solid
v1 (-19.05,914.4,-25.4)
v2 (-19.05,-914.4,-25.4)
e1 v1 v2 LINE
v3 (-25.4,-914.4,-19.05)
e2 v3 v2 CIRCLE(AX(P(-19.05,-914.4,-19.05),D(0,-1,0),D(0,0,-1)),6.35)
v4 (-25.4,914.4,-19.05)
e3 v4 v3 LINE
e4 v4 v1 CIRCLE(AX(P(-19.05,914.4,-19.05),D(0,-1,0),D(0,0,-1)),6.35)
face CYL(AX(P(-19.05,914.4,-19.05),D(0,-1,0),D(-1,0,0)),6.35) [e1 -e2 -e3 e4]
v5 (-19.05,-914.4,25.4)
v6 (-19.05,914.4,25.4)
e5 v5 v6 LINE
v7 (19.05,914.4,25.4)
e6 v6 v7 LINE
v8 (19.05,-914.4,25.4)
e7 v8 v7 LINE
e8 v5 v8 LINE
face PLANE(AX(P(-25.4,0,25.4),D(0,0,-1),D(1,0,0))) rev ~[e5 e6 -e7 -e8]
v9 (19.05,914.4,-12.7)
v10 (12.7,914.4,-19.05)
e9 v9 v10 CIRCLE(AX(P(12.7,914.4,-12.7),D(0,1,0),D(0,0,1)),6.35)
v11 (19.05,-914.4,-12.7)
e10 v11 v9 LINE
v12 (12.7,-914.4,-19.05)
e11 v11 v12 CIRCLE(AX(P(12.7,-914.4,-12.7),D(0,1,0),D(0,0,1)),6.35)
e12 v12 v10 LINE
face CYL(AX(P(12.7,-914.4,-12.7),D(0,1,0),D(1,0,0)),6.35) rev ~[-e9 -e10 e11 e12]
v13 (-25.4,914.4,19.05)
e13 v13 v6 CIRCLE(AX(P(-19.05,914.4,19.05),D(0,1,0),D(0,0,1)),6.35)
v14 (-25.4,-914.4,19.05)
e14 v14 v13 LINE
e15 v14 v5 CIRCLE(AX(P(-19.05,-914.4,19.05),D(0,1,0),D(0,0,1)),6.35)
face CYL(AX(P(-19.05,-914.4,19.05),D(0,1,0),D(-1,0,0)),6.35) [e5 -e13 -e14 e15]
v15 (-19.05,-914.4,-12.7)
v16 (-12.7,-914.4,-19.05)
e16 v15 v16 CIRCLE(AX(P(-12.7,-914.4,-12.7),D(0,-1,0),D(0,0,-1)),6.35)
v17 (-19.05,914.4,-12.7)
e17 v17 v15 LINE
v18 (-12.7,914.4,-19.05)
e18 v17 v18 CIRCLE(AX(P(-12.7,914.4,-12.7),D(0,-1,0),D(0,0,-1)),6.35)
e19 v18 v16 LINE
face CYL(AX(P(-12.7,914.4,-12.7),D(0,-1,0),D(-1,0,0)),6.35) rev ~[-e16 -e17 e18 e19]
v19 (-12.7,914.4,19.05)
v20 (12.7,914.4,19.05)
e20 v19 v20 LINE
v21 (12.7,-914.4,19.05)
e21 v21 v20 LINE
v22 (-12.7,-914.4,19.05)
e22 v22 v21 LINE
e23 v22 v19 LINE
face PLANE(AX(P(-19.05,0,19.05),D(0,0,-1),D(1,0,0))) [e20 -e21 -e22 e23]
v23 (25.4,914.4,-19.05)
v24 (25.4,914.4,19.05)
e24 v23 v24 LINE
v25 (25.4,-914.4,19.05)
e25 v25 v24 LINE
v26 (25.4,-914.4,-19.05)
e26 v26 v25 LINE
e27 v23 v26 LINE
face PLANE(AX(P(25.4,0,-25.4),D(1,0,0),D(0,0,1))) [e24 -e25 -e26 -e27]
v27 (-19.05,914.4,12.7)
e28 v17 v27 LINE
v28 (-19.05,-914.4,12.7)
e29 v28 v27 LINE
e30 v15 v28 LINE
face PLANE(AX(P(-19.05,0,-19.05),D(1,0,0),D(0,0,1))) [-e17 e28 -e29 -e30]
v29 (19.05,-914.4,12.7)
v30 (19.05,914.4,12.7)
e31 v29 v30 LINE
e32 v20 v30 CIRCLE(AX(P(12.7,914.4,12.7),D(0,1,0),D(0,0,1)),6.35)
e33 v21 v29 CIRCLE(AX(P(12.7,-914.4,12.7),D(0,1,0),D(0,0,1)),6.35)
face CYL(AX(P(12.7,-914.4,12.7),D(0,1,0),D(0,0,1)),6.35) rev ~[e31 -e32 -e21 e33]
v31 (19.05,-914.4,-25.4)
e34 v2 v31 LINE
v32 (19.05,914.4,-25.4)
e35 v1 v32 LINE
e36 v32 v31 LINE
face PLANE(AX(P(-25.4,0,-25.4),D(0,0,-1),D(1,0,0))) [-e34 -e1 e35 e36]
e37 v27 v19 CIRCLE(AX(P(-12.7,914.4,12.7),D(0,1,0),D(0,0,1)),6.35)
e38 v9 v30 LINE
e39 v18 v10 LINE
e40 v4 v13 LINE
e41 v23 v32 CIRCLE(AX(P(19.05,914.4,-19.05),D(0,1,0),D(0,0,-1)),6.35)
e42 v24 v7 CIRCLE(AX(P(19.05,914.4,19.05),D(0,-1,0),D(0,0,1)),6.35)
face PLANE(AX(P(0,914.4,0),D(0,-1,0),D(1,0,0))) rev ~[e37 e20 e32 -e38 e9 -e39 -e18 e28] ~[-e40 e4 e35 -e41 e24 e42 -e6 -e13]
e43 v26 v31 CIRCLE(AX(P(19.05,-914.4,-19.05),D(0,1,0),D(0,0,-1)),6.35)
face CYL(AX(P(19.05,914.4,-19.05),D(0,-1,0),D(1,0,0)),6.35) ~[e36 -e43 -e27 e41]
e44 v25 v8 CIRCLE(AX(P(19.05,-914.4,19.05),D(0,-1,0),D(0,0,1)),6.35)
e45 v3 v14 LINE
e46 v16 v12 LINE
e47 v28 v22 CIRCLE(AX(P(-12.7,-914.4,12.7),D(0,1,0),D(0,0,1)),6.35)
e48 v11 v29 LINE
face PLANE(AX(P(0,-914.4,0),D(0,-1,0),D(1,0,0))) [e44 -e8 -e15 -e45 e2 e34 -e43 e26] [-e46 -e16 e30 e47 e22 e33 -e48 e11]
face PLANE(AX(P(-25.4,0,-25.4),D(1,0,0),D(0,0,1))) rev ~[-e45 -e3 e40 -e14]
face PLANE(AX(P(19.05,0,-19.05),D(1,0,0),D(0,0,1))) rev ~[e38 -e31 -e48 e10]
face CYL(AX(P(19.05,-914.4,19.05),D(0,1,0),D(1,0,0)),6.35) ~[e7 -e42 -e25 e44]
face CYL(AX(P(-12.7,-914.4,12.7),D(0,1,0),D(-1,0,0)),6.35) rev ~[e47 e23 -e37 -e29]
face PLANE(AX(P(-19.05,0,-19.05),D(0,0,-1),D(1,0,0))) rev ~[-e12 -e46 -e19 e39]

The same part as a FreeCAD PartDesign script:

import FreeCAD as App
import Part
import Sketcher

V = App.Vector
Q = App.Units.Quantity


def edges_at(feature, points):
    """Names of the edges that pass closest to the given points."""
    edges = feature.Shape.Edges
    near = lambda p: min(range(len(edges)), key=lambda i: edges[i].distToShape(Part.Vertex(*p))[0])
    return sorted({f"Edge{near(p) + 1}" for p in points})


def add_polygon(sketch, points):
    """Adds a closed chain of lines whose ends are joined by coincident constraints."""
    first, n = sketch.GeometryCount, len(points)
    for a, b in zip(points, points[1:] + points[:1]):
        sketch.addGeometry(Part.LineSegment(App.Vector(*a, 0), App.Vector(*b, 0)), False)
    for i in range(n):
        sketch.addConstraint(Sketcher.Constraint("Coincident", first + i, 2, first + (i + 1) % n, 1))

doc = App.newDocument("Part")
body = doc.addObject("PartDesign::Body", "Body")

# Sketch on XZ plane
sketch1 = body.newObject("Sketcher::SketchObject", "Sketch")
sketch1.AttachmentSupport = (doc.getObject("XZ_Plane"), [""])
sketch1.MapMode = "FlatFace"
add_polygon(sketch1, [(-25.4, 25.4), (-25.4, -25.4), (25.4, -25.4), (25.4, 25.4)])  # lines 0-3
add_polygon(sketch1, [(19.05, -19.05), (-19.05, -19.05), (-19.05, 19.05), (19.05, 19.05)])  # lines 4-7
sketch1.addConstraint(Sketcher.Constraint("Vertical", 0))
sketch1.addConstraint(Sketcher.Constraint("Horizontal", 1))
sketch1.addConstraint(Sketcher.Constraint("Vertical", 2))
sketch1.addConstraint(Sketcher.Constraint("Horizontal", 3))
sketch1.addConstraint(Sketcher.Constraint("Horizontal", 4))
sketch1.addConstraint(Sketcher.Constraint("Vertical", 5))
sketch1.addConstraint(Sketcher.Constraint("Horizontal", 6))
sketch1.addConstraint(Sketcher.Constraint("Vertical", 7))
sketch1.addConstraint(Sketcher.Constraint("Symmetric", 0, 2, 2, 2, -1, 1))
sketch1.addConstraint(Sketcher.Constraint("Symmetric", 4, 2, 6, 2, -1, 1))
sketch1.addConstraint(Sketcher.Constraint("Equal", 3, 0))
sketch1.addConstraint(Sketcher.Constraint("Equal", 6, 5))
sketch1.addConstraint(Sketcher.Constraint("DistanceX", 1, 1, 1, 2, Q("2 in")))
sketch1.addConstraint(Sketcher.Constraint("DistanceX", 4, 2, 4, 1, Q("1.5 in")))
pad1 = body.newObject("PartDesign::Pad", "Pad")
pad1.Profile = sketch1
pad1.Length = Q("72 in")
pad1.Midplane = True
doc.recompute()

fillet = body.newObject("PartDesign::Fillet", "Fillet")
fillet.Base = (pad1, edges_at(pad1, [
    (-19.05, 0, 19.05),
    (25.4, 0, -25.4),
    (-25.4, 0, -25.4),
    (25.4, 0, 25.4),
    (19.05, 0, -19.05),
    (-25.4, 0, 25.4),
    (19.05, 0, 19.05),
    (-19.05, 0, -19.05),
]))
fillet.Radius = Q("0.25 in")

doc.recompute()
